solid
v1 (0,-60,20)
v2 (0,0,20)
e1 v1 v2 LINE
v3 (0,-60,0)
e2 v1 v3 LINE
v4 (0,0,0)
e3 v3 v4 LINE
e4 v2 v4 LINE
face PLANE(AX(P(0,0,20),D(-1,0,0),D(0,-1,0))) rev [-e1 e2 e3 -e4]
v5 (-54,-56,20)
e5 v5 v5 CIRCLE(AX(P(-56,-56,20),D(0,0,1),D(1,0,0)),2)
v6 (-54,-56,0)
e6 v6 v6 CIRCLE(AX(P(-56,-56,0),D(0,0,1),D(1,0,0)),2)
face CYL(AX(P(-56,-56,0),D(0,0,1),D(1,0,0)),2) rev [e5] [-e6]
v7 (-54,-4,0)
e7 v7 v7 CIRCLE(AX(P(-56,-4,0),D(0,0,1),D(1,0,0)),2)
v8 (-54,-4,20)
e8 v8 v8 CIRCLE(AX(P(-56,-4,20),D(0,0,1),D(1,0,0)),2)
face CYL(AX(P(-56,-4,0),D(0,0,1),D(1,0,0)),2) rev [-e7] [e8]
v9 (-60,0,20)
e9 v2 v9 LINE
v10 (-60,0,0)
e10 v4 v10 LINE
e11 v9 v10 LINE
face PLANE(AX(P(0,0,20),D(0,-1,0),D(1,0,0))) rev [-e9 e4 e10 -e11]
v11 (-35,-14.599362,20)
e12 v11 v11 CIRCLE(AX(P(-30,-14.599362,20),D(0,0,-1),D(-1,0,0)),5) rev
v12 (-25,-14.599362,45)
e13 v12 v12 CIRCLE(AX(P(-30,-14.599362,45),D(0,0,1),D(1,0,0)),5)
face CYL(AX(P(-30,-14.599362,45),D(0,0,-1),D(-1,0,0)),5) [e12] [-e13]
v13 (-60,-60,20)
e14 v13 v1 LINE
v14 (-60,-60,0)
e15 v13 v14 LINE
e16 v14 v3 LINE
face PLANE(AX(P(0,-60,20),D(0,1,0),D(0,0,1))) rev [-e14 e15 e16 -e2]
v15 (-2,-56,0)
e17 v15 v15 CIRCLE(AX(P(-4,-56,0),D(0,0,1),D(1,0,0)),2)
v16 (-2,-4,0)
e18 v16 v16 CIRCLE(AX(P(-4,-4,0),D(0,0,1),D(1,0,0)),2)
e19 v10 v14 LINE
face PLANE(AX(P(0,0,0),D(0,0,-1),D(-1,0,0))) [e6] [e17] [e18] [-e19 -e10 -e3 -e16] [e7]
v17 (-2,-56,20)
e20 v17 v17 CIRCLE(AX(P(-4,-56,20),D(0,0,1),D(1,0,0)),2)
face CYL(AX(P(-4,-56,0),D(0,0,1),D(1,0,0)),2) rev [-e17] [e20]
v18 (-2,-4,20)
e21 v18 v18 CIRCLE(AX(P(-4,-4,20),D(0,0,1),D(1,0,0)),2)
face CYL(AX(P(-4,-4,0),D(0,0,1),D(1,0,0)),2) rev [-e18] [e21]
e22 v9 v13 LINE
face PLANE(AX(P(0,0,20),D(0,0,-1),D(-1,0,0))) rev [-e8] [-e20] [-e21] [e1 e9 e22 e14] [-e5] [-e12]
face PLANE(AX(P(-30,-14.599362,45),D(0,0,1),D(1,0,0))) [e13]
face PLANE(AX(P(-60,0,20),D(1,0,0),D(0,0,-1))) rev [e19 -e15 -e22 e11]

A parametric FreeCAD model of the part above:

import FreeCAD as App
import Part
import Sketcher

V = App.Vector
Q = App.Units.Quantity

doc = App.newDocument("Part")
body = doc.addObject("PartDesign::Body", "Body")

# Sketch on XY plane
sketch1 = body.newObject("Sketcher::SketchObject", "Sketch")
sketch1.AttachmentSupport = (doc.getObject("XY_Plane"), [""])
sketch1.MapMode = "FlatFace"
sketch1.addGeometry([
    Part.LineSegment(V(-60, 0, 0), V(-60, -60, 0)),
    Part.LineSegment(V(-60, -60, 0), V(0, -60, 0)),
    Part.LineSegment(V(0, -60, 0), V(0, 0, 0)),
    Part.LineSegment(V(0, 0, 0), V(-60, 0, 0)),
], False)
sketch1.addConstraint([
    Sketcher.Constraint("Coincident", 0, 2, 1, 1),
    Sketcher.Constraint("Coincident", 1, 2, 2, 1),
    Sketcher.Constraint("Coincident", 2, 2, 3, 1),
    Sketcher.Constraint("Coincident", 3, 2, 0, 1),
    Sketcher.Constraint("Vertical", 0),
    Sketcher.Constraint("Horizontal", 1),
    Sketcher.Constraint("Vertical", 2),
    Sketcher.Constraint("Horizontal", 3),
    Sketcher.Constraint("Coincident", 2, 2, -1, 1),
    Sketcher.Constraint("Equal", 3, 0),
    Sketcher.Constraint("DistanceX", 1, 1, 1, 2, Q("60 mm")),
])
pad1 = body.newObject("PartDesign::Pad", "Pad")
pad1.Profile = sketch1
pad1.Length = 20

# Sketch on XY plane
sketch2 = body.newObject("Sketcher::SketchObject", "Sketch001")
sketch2.AttachmentSupport = (doc.getObject("XY_Plane"), [""])
sketch2.MapMode = "FlatFace"
sketch2.AttachmentOffset = App.Placement(V(0, 0, 20), App.Rotation())
sketch2.addGeometry(Part.Circle(V(-30, -15, 0), V(0, 0, 1), 5), False)
sketch2.addConstraint([
    Sketcher.Constraint("Diameter", 0, Q("10 mm")),
    Sketcher.Constraint("DistanceX", 0, 3, -1, 1, Q("30 mm")),
    Sketcher.Constraint("DistanceY", 0, 3, -1, 1, Q("14.599362 mm")),
])
pad2 = body.newObject("PartDesign::Pad", "Pad001")
pad2.Profile = sketch2
pad2.Length = 25

# Sketch on XY plane
sketch3 = body.newObject("Sketcher::SketchObject", "Sketch002")
sketch3.AttachmentSupport = (doc.getObject("XY_Plane"), [""])
sketch3.MapMode = "FlatFace"
sketch3.AttachmentOffset = App.Placement(V(0, 0, 20), App.Rotation())
sketch3.addGeometry([
    Part.Circle(V(-4, -4, 0), V(0, 0, 1), 2),
    Part.Circle(V(-4, -56, 0), V(0, 0, 1), 2),
    Part.Circle(V(-56, -4, 0), V(0, 0, 1), 2),
    Part.Circle(V(-56, -56, 0), V(0, 0, 1), 2),
], False)
sketch3.addConstraint([
    Sketcher.Constraint("Equal", 0, 1),
    Sketcher.Constraint("Equal", 1, 2),
    Sketcher.Constraint("Equal", 2, 3),
    Sketcher.Constraint("Horizontal", 0, 3, 2, 3),
    Sketcher.Constraint("Horizontal", 1, 3, 3, 3),
    Sketcher.Constraint("Vertical", 0, 3, 1, 3),
    Sketcher.Constraint("Vertical", 2, 3, 3, 3),
    Sketcher.Constraint("Diameter", 0, Q("4 mm")),
    Sketcher.Constraint("DistanceX", 0, 3, -1, 1, Q("4 mm")),
    Sketcher.Constraint("DistanceY", 0, 3, -1, 1, Q("4 mm")),
    Sketcher.Constraint("DistanceY", 1, 3, -1, 1, Q("56 mm")),
    Sketcher.Constraint("DistanceX", 2, 3, -1, 1, Q("56 mm")),
])
pocket1 = body.newObject("PartDesign::Pocket", "Pocket")
pocket1.Profile = sketch3
pocket1.Type = "ThroughAll"

doc.recompute()
